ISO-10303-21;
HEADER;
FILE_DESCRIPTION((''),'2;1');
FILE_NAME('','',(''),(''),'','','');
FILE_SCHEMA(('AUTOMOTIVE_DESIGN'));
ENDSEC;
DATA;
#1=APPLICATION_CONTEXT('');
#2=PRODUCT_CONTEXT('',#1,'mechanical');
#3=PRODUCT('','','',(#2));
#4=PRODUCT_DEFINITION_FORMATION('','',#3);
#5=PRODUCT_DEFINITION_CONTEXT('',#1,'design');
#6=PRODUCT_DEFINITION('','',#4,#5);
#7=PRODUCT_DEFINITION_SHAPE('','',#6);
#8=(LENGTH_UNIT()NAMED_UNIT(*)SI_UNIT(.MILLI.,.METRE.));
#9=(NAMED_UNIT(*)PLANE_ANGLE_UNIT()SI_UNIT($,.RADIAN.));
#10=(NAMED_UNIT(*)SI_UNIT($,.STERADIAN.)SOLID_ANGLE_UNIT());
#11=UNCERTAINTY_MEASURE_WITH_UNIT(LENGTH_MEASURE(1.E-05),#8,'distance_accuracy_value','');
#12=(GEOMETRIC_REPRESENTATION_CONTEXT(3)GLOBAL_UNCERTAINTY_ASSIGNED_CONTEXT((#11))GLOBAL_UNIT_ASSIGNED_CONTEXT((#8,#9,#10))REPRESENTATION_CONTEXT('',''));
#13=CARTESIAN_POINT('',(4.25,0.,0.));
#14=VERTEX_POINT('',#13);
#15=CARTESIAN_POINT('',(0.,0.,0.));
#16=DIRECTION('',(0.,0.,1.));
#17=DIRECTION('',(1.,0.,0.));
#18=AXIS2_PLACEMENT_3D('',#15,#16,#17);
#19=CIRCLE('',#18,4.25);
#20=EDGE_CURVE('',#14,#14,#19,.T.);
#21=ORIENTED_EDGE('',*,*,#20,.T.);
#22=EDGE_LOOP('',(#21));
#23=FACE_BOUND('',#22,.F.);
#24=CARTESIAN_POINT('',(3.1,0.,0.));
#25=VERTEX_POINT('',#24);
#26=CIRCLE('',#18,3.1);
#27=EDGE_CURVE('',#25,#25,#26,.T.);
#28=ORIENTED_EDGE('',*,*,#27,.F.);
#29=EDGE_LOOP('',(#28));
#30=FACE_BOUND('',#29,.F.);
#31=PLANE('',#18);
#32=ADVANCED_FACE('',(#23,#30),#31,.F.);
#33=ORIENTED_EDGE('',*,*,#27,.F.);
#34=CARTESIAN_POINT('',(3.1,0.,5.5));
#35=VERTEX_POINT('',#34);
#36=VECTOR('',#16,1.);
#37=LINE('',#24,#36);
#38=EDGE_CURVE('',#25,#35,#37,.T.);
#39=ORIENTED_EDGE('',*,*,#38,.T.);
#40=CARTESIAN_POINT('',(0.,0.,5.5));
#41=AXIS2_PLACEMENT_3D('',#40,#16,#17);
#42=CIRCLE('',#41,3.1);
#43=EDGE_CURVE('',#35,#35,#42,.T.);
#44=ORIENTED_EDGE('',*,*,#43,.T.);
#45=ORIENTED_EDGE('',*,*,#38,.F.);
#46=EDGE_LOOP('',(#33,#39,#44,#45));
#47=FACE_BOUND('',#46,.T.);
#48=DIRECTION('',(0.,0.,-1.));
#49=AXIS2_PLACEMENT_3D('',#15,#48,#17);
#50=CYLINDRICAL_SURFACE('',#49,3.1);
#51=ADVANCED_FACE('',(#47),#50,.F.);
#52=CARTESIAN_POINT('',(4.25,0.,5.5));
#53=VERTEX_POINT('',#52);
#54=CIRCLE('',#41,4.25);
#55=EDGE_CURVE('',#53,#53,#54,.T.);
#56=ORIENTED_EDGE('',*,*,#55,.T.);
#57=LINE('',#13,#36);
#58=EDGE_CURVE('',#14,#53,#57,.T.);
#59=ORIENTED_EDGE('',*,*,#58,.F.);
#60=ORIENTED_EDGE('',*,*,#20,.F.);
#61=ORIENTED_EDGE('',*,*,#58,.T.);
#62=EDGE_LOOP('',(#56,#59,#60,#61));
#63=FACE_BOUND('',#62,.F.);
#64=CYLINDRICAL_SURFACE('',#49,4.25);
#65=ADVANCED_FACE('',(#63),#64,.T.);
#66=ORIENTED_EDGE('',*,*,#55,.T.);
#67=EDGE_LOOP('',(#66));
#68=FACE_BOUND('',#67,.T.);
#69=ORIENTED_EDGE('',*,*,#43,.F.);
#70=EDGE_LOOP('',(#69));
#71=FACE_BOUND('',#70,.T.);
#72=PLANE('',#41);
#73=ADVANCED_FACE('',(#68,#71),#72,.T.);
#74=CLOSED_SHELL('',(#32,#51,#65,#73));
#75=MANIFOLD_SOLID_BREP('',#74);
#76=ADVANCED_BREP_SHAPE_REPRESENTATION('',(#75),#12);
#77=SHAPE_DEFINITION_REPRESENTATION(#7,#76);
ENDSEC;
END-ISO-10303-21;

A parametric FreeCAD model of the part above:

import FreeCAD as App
import Part
import Sketcher

V = App.Vector

doc = App.newDocument("Part")
body = doc.addObject("PartDesign::Body", "Body")

sketch1 = body.newObject("Sketcher::SketchObject", "Sketch")
sketch1.AttachmentSupport = (doc.getObject("XY_Plane"), [""])
sketch1.MapMode = "FlatFace"
sketch1.addGeometry(Part.Circle(V(0, 0, 0), V(0, 0, 1), 4.2), False)
sketch1.addGeometry(Part.Circle(V(0, 0, 0), V(0, 0, 1), 3.1), False)
sketch1.addConstraint(Sketcher.Constraint("Coincident", 0, 3, -1, 1))
sketch1.addConstraint(Sketcher.Constraint("Coincident", 1, 3, -1, 1))
sketch1.addConstraint(Sketcher.Constraint("Diameter", 0, 8.5))
sketch1.addConstraint(Sketcher.Constraint("Diameter", 1, 6.2))
pad1 = body.newObject("PartDesign::Pad", "Pad")
pad1.Profile = sketch1
pad1.Length = 5.5

doc.recompute()
